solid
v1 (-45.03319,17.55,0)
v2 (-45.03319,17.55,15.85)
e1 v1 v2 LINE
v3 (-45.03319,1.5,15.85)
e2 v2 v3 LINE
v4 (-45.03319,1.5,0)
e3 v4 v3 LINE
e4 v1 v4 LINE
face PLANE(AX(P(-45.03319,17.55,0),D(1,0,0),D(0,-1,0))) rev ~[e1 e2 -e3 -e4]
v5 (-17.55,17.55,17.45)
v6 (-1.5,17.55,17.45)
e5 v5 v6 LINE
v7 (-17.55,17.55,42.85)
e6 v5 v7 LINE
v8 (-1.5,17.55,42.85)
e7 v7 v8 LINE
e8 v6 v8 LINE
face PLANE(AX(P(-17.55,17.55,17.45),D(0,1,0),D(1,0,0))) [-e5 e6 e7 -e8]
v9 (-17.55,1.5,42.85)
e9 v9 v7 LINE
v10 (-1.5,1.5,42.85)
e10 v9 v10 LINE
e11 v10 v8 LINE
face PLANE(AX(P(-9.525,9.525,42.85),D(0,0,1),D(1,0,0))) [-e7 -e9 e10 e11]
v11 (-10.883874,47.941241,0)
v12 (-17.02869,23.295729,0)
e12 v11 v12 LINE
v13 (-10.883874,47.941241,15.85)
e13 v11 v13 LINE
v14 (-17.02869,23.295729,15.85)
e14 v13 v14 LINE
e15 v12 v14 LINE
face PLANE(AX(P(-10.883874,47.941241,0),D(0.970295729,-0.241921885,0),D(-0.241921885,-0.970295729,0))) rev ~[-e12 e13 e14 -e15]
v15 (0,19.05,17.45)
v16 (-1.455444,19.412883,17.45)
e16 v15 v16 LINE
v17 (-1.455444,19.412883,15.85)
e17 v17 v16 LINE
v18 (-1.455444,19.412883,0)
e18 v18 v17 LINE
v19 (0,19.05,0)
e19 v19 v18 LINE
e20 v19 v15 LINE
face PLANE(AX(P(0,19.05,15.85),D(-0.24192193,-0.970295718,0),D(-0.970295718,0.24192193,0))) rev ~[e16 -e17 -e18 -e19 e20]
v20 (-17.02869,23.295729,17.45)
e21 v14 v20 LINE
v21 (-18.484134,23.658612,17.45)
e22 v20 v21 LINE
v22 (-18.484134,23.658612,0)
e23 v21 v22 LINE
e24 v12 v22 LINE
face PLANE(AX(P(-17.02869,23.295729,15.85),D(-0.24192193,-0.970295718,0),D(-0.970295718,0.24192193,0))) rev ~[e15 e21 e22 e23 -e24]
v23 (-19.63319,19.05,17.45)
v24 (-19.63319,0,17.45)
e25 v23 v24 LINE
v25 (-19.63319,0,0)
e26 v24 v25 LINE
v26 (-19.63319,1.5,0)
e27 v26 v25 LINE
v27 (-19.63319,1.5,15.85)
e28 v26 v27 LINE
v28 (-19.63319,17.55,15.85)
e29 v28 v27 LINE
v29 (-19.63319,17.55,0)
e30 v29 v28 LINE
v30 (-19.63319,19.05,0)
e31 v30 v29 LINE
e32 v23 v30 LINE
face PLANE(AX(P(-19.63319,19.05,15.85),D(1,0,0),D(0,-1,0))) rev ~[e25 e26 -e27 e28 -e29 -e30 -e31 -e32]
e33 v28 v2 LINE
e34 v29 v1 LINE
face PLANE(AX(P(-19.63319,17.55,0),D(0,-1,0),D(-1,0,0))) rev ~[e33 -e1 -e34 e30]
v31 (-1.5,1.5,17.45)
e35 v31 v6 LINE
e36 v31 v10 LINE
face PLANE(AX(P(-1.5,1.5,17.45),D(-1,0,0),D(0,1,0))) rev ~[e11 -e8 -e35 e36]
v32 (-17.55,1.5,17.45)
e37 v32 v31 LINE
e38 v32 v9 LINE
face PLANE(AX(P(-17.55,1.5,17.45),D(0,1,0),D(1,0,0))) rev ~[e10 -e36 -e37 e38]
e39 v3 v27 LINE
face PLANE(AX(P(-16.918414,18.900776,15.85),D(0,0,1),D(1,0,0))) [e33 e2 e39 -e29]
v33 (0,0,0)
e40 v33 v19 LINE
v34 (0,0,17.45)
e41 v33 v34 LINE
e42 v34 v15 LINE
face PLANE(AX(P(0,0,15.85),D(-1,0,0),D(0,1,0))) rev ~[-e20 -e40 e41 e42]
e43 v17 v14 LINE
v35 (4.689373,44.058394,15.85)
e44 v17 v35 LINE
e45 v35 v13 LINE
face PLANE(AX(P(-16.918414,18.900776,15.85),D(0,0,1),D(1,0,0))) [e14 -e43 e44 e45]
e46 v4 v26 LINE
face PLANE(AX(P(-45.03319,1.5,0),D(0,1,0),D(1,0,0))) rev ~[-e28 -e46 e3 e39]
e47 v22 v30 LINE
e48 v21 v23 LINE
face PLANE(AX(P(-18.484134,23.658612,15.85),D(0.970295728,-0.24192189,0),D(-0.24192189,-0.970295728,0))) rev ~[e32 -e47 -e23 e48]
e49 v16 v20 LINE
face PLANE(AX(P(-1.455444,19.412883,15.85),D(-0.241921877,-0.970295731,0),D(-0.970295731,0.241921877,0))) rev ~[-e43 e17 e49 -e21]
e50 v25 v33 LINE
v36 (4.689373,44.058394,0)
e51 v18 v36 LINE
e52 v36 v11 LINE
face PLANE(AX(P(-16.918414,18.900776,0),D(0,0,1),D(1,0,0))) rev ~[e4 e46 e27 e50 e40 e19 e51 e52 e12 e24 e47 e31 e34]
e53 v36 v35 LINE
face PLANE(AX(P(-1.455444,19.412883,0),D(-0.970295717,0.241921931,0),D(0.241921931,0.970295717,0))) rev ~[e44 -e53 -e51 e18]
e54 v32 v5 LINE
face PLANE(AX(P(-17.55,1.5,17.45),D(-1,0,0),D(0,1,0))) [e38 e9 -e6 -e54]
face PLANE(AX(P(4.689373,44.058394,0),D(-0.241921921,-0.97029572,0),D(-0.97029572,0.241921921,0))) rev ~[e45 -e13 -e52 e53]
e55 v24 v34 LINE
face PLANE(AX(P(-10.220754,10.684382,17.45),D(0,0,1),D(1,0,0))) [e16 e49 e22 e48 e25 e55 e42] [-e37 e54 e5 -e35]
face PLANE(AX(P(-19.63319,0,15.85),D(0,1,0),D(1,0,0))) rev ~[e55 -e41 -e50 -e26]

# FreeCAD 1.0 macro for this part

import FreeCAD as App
import Part
import Sketcher
from FreeCAD import Vector
Q = App.Units.Quantity

doc = App.newDocument("Part")
body = doc.addObject("PartDesign::Body", "Body")

# Sketch on XY plane
sketch1 = body.newObject("Sketcher::SketchObject", "Sketch")
sketch1.AttachmentSupport = (doc.getObject("XY_Plane"), [""])
sketch1.MapMode = "FlatFace"
sketch1.addGeometry(Part.LineSegment(Vector(-19.6, 0, 0), Vector(0, 0, 0)), False)
sketch1.addGeometry(Part.LineSegment(Vector(0, 0, 0), Vector(0, 19.1, 0)), False)
sketch1.addGeometry(Part.LineSegment(Vector(0, 19.1, 0), Vector(-1.5, 19.4, 0)), False)
sketch1.addGeometry(Part.LineSegment(Vector(-1.5, 19.4, 0), Vector(4.7, 44.1, 0)), False)
sketch1.addGeometry(Part.LineSegment(Vector(4.7, 44.1, 0), Vector(-10.9, 47.9, 0)), False)
sketch1.addGeometry(Part.LineSegment(Vector(-10.9, 47.9, 0), Vector(-17, 23.3, 0)), False)
sketch1.addGeometry(Part.LineSegment(Vector(-17, 23.3, 0), Vector(-18.5, 23.7, 0)), False)
sketch1.addGeometry(Part.LineSegment(Vector(-18.5, 23.7, 0), Vector(-19.6, 19.1, 0)), False)
sketch1.addGeometry(Part.LineSegment(Vector(-19.6, 19.1, 0), Vector(-19.6, 17.6, 0)), False)
sketch1.addGeometry(Part.LineSegment(Vector(-19.6, 17.6, 0), Vector(-45, 17.6, 0)), False)
sketch1.addGeometry(Part.LineSegment(Vector(-45, 17.6, 0), Vector(-45, 1.5, 0)), False)
sketch1.addGeometry(Part.LineSegment(Vector(-45, 1.5, 0), Vector(-19.6, 1.5, 0)), False)
sketch1.addGeometry(Part.LineSegment(Vector(-19.6, 1.5, 0), Vector(-19.6, 0, 0)), False)
sketch1.addConstraint(Sketcher.Constraint("Coincident", 0, 2, 1, 1))
sketch1.addConstraint(Sketcher.Constraint("Coincident", 1, 2, 2, 1))
sketch1.addConstraint(Sketcher.Constraint("Coincident", 2, 2, 3, 1))
sketch1.addConstraint(Sketcher.Constraint("Coincident", 3, 2, 4, 1))
sketch1.addConstraint(Sketcher.Constraint("Coincident", 4, 2, 5, 1))
sketch1.addConstraint(Sketcher.Constraint("Coincident", 5, 2, 6, 1))
sketch1.addConstraint(Sketcher.Constraint("Coincident", 6, 2, 7, 1))
sketch1.addConstraint(Sketcher.Constraint("Coincident", 7, 2, 8, 1))
sketch1.addConstraint(Sketcher.Constraint("Coincident", 8, 2, 9, 1))
sketch1.addConstraint(Sketcher.Constraint("Coincident", 9, 2, 10, 1))
sketch1.addConstraint(Sketcher.Constraint("Coincident", 10, 2, 11, 1))
sketch1.addConstraint(Sketcher.Constraint("Coincident", 11, 2, 12, 1))
sketch1.addConstraint(Sketcher.Constraint("Coincident", 12, 2, 0, 1))
sketch1.addConstraint(Sketcher.Constraint("Horizontal", 0))
sketch1.addConstraint(Sketcher.Constraint("Vertical", 1))
sketch1.addConstraint(Sketcher.Constraint("Vertical", 8))
sketch1.addConstraint(Sketcher.Constraint("Horizontal", 9))
sketch1.addConstraint(Sketcher.Constraint("Vertical", 10))
sketch1.addConstraint(Sketcher.Constraint("Horizontal", 11))
sketch1.addConstraint(Sketcher.Constraint("Vertical", 12))
sketch1.addConstraint(Sketcher.Constraint("Coincident", 0, 2, -1, 1))
sketch1.addConstraint(Sketcher.Constraint("Perpendicular", 2, 3))
sketch1.addConstraint(Sketcher.Constraint("Perpendicular", 3, 4))
sketch1.addConstraint(Sketcher.Constraint("Perpendicular", 4, 5))
sketch1.addConstraint(Sketcher.Constraint("Perpendicular", 5, 6))
sketch1.addConstraint(Sketcher.Constraint("Perpendicular", 6, 7))
sketch1.addConstraint(Sketcher.Constraint("Horizontal", 1, 2, 7, 2))
sketch1.addConstraint(Sketcher.Constraint("Vertical", 8, 2, 11, 2))
sketch1.addConstraint(Sketcher.Constraint("Equal", 8, 12))
sketch1.addConstraint(Sketcher.Constraint("Equal", 3, 5))
sketch1.addConstraint(Sketcher.Constraint("Equal", 2, 6))
sketch1.addConstraint(Sketcher.Constraint("DistanceX", 9, 2, 9, 1, Q("1 in")))
sketch1.addConstraint(Sketcher.Constraint("Distance", 3, Q("1 in")))
sketch1.addConstraint(Sketcher.Constraint("Angle", 2, Q("165.999998 deg")))
sketch1.addConstraint(Sketcher.Constraint("DistanceY", 1, 1, 1, 2, Q("0.75 in")))
sketch1.addConstraint(Sketcher.Constraint("DistanceY", 8, 2, 8, 1, 1.5))
sketch1.addConstraint(Sketcher.Constraint("Distance", 2, 1.5))
sketch1.addConstraint(Sketcher.Constraint("Distance", 4, 16.050001))
pad1 = body.newObject("PartDesign::Pad", "Pad")
pad1.Profile = sketch1
pad1.Length = 15.85

# Sketch on XY plane
sketch2 = body.newObject("Sketcher::SketchObject", "Sketch001")
sketch2.AttachmentSupport = (doc.getObject("XY_Plane"), [""])
sketch2.MapMode = "FlatFace"
sketch2.AttachmentOffset = App.Placement(Vector(0, 0, 15.85), App.Rotation())
sketch2.addGeometry(Part.LineSegment(Vector(-19.6, 0, 0), Vector(0, 0, 0)), False)
sketch2.addGeometry(Part.LineSegment(Vector(0, 0, 0), Vector(0, 19.1, 0)), False)
sketch2.addGeometry(Part.LineSegment(Vector(0, 19.1, 0), Vector(-1.5, 19.4, 0)), False)
sketch2.addGeometry(Part.LineSegment(Vector(-1.5, 19.4, 0), Vector(-17, 23.3, 0)), False)
sketch2.addGeometry(Part.LineSegment(Vector(-17, 23.3, 0), Vector(-18.5, 23.7, 0)), False)
sketch2.addGeometry(Part.LineSegment(Vector(-18.5, 23.7, 0), Vector(-19.6, 19.1, 0)), False)
sketch2.addGeometry(Part.LineSegment(Vector(-19.6, 19.1, 0), Vector(-19.6, 0, 0)), False)
sketch2.addConstraint(Sketcher.Constraint("Coincident", 0, 2, 1, 1))
sketch2.addConstraint(Sketcher.Constraint("Coincident", 1, 2, 2, 1))
sketch2.addConstraint(Sketcher.Constraint("Coincident", 2, 2, 3, 1))
sketch2.addConstraint(Sketcher.Constraint("Coincident", 3, 2, 4, 1))
sketch2.addConstraint(Sketcher.Constraint("Coincident", 4, 2, 5, 1))
sketch2.addConstraint(Sketcher.Constraint("Coincident", 5, 2, 6, 1))
sketch2.addConstraint(Sketcher.Constraint("Coincident", 6, 2, 0, 1))
sketch2.addConstraint(Sketcher.Constraint("Horizontal", 0))
sketch2.addConstraint(Sketcher.Constraint("Vertical", 1))
sketch2.addConstraint(Sketcher.Constraint("Vertical", 6))
sketch2.addConstraint(Sketcher.Constraint("Coincident", 0, 2, -1, 1))
sketch2.addConstraint(Sketcher.Constraint("Parallel", 2, 3))
sketch2.addConstraint(Sketcher.Constraint("Parallel", 3, 4))
sketch2.addConstraint(Sketcher.Constraint("Perpendicular", 4, 5))
sketch2.addConstraint(Sketcher.Constraint("Horizontal", 1, 2, 5, 2))
sketch2.addConstraint(Sketcher.Constraint("Equal", 2, 4))
sketch2.addConstraint(Sketcher.Constraint("Angle", 2, Q("165.999998 deg")))
sketch2.addConstraint(Sketcher.Constraint("DistanceY", 1, 1, 1, 2, Q("0.75 in")))
sketch2.addConstraint(Sketcher.Constraint("Distance", 2, 1.5))
sketch2.addConstraint(Sketcher.Constraint("Distance", 3, 16.05))
pad2 = body.newObject("PartDesign::Pad", "Pad001")
pad2.Profile = sketch2
pad2.Length = 1.6

# Sketch on XY plane
sketch3 = body.newObject("Sketcher::SketchObject", "Sketch002")
sketch3.AttachmentSupport = (doc.getObject("XY_Plane"), [""])
sketch3.MapMode = "FlatFace"
sketch3.AttachmentOffset = App.Placement(Vector(0, 0, 17.45), App.Rotation())
sketch3.addGeometry(Part.LineSegment(Vector(-18, 18, 0), Vector(-18, 2, 0)), False)
sketch3.addGeometry(Part.LineSegment(Vector(-18, 2, 0), Vector(-2, 2, 0)), False)
sketch3.addGeometry(Part.LineSegment(Vector(-2, 2, 0), Vector(-2, 18, 0)), False)
sketch3.addGeometry(Part.LineSegment(Vector(-2, 18, 0), Vector(-18, 18, 0)), False)
sketch3.addConstraint(Sketcher.Constraint("Coincident", 0, 2, 1, 1))
sketch3.addConstraint(Sketcher.Constraint("Coincident", 1, 2, 2, 1))
sketch3.addConstraint(Sketcher.Constraint("Coincident", 2, 2, 3, 1))
sketch3.addConstraint(Sketcher.Constraint("Coincident", 3, 2, 0, 1))
sketch3.addConstraint(Sketcher.Constraint("Vertical", 0))
sketch3.addConstraint(Sketcher.Constraint("Horizontal", 1))
sketch3.addConstraint(Sketcher.Constraint("Vertical", 2))
sketch3.addConstraint(Sketcher.Constraint("Horizontal", 3))
sketch3.addConstraint(Sketcher.Constraint("Equal", 3, 0))
sketch3.addConstraint(Sketcher.Constraint("DistanceX", 1, 1, 1, 2, 16.05))
sketch3.addConstraint(Sketcher.Constraint("DistanceX", 0, 2, -1, 1, 17.55))
sketch3.addConstraint(Sketcher.Constraint("DistanceY", -1, 1, 0, 2, 1.5))
pad3 = body.newObject("PartDesign::Pad", "Pad002")
pad3.Profile = sketch3
pad3.Length = Q("1 in")

doc.recompute()
